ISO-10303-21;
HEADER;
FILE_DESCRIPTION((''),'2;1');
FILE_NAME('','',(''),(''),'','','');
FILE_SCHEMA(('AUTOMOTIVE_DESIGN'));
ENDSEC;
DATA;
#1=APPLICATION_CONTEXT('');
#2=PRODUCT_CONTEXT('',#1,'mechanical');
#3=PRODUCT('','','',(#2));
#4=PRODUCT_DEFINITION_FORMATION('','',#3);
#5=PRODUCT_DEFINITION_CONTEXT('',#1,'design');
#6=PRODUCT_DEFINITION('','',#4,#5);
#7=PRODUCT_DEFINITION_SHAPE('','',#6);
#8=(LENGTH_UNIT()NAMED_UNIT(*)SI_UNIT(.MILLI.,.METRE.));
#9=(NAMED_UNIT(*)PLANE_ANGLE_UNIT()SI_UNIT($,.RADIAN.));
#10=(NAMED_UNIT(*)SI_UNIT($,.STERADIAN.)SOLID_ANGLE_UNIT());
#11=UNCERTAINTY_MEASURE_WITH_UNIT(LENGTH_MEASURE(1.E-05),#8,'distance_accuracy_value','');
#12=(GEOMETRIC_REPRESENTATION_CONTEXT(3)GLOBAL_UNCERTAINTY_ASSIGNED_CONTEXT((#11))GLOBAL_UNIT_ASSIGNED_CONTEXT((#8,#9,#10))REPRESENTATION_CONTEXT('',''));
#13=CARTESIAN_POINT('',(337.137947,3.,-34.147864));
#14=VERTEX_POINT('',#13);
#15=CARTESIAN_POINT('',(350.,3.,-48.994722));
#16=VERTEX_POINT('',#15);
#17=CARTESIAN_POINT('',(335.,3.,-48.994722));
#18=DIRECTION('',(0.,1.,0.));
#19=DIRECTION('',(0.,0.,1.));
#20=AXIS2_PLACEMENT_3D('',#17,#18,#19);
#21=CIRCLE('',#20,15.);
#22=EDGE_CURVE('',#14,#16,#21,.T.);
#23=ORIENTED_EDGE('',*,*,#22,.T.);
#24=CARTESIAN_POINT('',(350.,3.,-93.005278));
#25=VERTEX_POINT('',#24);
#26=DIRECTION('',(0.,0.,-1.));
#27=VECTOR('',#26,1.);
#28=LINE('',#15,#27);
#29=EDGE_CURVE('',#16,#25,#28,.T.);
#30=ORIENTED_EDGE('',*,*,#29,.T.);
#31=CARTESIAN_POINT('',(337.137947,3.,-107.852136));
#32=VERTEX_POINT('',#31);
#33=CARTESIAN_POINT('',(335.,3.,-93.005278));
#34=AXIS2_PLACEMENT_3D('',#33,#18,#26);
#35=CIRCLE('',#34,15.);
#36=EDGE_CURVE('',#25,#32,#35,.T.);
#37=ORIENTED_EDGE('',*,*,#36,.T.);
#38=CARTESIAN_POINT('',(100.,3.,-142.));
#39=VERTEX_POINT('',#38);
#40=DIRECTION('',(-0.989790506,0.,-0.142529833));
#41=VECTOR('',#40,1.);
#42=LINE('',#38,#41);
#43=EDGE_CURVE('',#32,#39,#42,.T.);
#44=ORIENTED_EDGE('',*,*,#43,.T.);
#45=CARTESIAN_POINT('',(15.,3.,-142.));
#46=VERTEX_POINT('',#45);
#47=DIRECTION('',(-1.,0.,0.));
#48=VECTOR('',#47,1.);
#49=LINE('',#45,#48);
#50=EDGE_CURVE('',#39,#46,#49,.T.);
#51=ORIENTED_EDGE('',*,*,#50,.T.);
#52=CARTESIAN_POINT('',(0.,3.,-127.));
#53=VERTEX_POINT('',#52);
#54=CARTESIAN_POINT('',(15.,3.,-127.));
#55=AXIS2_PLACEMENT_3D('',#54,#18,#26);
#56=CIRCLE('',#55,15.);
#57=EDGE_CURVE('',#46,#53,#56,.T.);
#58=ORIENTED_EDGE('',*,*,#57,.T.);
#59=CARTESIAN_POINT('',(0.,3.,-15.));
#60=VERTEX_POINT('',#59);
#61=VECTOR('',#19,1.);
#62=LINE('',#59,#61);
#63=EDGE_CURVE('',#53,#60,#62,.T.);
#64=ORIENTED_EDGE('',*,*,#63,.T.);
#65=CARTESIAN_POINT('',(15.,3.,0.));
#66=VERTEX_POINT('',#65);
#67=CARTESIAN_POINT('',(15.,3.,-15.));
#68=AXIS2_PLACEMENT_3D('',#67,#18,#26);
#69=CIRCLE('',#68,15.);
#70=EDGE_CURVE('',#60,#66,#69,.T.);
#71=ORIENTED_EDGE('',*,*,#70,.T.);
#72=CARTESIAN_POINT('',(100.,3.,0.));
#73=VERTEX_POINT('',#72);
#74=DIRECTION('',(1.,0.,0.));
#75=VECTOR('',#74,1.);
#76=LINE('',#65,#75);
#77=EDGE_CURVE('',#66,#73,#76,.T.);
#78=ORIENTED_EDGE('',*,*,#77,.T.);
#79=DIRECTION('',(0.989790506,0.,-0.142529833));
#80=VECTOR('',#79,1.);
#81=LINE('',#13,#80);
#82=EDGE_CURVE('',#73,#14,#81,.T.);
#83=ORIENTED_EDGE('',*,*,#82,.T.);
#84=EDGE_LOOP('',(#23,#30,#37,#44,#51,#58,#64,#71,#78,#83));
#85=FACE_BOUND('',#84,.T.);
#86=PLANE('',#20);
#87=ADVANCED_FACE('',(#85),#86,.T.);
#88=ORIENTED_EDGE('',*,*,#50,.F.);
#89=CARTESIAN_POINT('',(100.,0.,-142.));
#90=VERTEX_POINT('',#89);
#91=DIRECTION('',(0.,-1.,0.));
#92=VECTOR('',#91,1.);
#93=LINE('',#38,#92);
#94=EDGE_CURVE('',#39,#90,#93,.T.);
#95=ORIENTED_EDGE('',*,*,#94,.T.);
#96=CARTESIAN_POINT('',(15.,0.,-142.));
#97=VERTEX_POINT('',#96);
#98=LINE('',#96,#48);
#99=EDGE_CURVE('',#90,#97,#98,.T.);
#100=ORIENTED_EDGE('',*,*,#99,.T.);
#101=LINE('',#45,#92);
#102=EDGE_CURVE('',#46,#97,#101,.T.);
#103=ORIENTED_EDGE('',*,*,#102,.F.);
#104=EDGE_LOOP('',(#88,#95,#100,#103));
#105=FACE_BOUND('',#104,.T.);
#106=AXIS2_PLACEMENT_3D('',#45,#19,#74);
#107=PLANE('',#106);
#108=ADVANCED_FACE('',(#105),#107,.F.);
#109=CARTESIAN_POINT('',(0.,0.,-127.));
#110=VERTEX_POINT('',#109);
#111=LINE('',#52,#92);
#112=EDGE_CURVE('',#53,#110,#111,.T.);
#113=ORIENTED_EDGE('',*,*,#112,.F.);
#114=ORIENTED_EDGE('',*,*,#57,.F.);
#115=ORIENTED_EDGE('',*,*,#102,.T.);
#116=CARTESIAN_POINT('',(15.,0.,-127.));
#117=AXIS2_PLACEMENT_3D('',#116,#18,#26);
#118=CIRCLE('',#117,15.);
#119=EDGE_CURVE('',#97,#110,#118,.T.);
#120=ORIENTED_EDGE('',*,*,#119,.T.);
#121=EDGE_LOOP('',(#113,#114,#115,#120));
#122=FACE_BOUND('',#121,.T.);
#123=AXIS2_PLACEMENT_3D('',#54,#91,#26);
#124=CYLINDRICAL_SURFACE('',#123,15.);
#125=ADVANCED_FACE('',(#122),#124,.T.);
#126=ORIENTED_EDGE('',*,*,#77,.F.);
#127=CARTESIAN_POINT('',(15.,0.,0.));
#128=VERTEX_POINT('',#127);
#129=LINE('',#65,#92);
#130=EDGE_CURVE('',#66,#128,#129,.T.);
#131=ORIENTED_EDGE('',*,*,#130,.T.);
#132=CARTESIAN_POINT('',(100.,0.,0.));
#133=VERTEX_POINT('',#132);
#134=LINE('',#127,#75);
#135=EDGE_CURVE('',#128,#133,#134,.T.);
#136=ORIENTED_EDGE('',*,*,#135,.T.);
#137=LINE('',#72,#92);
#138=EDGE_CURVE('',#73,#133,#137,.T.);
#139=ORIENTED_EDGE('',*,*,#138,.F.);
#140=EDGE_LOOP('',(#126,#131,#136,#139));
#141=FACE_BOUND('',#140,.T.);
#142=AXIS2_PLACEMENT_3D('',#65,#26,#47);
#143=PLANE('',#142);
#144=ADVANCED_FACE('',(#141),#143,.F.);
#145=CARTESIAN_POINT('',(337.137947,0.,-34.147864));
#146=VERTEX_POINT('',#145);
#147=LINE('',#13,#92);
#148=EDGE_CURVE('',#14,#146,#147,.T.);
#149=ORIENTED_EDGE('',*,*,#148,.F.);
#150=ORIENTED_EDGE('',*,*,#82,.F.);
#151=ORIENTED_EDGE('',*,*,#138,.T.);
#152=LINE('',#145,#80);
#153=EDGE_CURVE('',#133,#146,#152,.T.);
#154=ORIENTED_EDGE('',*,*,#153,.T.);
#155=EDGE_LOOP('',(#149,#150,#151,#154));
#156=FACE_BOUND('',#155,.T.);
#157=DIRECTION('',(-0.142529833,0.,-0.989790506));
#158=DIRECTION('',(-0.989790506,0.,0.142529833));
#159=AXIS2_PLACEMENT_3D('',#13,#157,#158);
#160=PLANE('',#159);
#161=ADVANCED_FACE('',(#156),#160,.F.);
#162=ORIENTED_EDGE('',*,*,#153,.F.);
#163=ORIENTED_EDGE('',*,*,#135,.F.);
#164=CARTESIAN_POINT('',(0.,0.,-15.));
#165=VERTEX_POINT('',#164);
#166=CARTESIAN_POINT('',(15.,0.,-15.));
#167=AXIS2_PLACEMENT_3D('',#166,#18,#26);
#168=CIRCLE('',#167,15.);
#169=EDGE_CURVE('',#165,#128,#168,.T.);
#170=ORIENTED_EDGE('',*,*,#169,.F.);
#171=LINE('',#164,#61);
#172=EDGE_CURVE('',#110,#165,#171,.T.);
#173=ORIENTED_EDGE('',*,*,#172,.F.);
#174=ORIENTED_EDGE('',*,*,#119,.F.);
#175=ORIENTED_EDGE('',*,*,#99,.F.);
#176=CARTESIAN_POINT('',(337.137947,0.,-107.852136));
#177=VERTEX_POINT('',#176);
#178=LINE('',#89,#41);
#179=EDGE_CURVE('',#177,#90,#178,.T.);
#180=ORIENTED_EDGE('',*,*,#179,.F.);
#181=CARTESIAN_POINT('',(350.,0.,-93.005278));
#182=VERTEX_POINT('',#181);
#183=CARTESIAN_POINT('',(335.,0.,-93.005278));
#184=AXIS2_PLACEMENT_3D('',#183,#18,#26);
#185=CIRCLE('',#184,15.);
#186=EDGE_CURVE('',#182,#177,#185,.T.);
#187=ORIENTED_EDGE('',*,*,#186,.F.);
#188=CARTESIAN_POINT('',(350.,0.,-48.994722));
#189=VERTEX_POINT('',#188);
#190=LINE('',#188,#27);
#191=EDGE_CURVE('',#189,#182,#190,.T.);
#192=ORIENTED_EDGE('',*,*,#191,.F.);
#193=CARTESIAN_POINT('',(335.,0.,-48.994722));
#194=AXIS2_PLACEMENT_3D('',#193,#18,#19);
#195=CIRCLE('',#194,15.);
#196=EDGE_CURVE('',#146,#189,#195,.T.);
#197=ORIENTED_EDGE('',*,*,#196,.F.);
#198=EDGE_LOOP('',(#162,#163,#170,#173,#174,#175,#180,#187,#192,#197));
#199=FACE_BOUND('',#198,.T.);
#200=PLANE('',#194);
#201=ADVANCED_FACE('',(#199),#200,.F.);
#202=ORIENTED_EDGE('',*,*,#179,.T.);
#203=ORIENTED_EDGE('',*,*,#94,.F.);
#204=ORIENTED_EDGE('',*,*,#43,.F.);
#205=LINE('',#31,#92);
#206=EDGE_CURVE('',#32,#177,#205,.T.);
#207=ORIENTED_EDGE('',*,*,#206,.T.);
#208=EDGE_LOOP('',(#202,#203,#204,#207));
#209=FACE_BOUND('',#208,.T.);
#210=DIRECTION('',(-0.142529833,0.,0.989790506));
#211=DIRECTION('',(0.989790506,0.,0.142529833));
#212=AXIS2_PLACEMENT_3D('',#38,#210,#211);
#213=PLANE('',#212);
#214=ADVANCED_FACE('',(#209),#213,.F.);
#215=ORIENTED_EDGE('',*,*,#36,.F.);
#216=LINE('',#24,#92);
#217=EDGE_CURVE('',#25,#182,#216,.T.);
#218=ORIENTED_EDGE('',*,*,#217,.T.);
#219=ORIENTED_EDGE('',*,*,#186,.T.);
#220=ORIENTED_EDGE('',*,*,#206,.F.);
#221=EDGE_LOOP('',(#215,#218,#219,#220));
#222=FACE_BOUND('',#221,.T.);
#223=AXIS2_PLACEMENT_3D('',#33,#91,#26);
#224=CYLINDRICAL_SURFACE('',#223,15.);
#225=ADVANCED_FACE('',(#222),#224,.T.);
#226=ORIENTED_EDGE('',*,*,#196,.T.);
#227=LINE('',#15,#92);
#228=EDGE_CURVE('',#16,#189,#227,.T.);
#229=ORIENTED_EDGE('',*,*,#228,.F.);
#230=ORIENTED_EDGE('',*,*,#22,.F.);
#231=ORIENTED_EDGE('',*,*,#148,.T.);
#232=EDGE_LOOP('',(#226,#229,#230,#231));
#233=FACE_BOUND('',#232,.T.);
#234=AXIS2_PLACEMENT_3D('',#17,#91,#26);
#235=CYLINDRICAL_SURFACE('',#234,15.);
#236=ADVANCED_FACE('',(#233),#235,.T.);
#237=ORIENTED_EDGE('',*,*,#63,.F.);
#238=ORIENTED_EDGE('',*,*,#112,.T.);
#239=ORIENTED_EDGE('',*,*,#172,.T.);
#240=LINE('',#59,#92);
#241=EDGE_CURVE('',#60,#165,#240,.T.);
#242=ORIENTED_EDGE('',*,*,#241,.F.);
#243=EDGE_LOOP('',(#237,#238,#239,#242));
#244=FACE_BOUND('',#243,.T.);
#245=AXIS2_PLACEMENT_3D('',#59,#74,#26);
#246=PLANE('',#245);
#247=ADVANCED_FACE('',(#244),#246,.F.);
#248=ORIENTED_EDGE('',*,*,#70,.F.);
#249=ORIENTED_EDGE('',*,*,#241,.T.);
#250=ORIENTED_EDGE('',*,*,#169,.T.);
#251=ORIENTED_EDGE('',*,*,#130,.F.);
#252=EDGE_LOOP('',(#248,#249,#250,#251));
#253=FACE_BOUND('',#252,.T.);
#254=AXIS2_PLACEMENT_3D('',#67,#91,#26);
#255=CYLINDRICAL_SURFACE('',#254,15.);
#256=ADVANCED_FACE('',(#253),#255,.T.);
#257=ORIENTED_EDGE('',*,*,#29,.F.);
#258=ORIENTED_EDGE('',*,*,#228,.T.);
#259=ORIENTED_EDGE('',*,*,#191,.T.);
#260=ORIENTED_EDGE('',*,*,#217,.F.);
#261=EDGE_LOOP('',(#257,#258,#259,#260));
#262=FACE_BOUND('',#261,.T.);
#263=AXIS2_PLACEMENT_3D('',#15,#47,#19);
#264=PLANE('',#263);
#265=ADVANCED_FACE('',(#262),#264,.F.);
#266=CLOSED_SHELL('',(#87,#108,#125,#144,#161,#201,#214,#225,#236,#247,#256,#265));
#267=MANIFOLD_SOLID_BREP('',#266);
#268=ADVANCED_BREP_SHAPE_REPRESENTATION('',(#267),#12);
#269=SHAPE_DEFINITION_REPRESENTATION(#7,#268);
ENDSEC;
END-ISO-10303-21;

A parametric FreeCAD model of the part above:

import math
import FreeCAD as App
import Part
import Sketcher

doc = App.newDocument("Part")
body = doc.addObject("PartDesign::Body", "Body")

sketch1 = doc.addObject("Sketcher::SketchObject", "Sketch")
body.addObject(sketch1)
sketch1.AttachmentSupport = (doc.XZ_Plane, [""])
sketch1.MapMode = "FlatFace"
sketch1.addGeometry(Part.LineSegment(App.Vector(15, 0, 0), App.Vector(100, 0, 0)), False)
sketch1.addGeometry(Part.LineSegment(App.Vector(100, 0, 0), App.Vector(337, -34, 0)), False)
sketch1.addGeometry(Part.ArcOfCircle(Part.Circle(App.Vector(335, -49, 0), App.Vector(0, 0, 1), 15), math.radians(0), math.radians(82)), False)
sketch1.addGeometry(Part.LineSegment(App.Vector(350, -49, 0), App.Vector(350, -93, 0)), False)
sketch1.addGeometry(Part.ArcOfCircle(Part.Circle(App.Vector(335, -93, 0), App.Vector(0, 0, 1), 15), math.radians(-82), math.radians(0)), False)
sketch1.addGeometry(Part.LineSegment(App.Vector(337, -108, 0), App.Vector(100, -142, 0)), False)
sketch1.addGeometry(Part.LineSegment(App.Vector(100, -142, 0), App.Vector(15, -142, 0)), False)
sketch1.addGeometry(Part.ArcOfCircle(Part.Circle(App.Vector(15, -127, 0), App.Vector(0, 0, 1), 15), math.radians(180), math.radians(270)), False)
sketch1.addGeometry(Part.LineSegment(App.Vector(0, -127, 0), App.Vector(0, -15, 0)), False)
sketch1.addGeometry(Part.ArcOfCircle(Part.Circle(App.Vector(15, -15, 0), App.Vector(0, 0, 1), 15), math.radians(90), math.radians(180)), False)
sketch1.addConstraint(Sketcher.Constraint("Coincident", 0, 2, 1, 1))
sketch1.addConstraint(Sketcher.Constraint("Tangent", 1, 2, 2, 2))
sketch1.addConstraint(Sketcher.Constraint("Tangent", 2, 1, 3, 1))
sketch1.addConstraint(Sketcher.Constraint("Tangent", 3, 2, 4, 2))
sketch1.addConstraint(Sketcher.Constraint("Tangent", 4, 1, 5, 1))
sketch1.addConstraint(Sketcher.Constraint("Coincident", 5, 2, 6, 1))
sketch1.addConstraint(Sketcher.Constraint("Tangent", 6, 2, 7, 2))
sketch1.addConstraint(Sketcher.Constraint("Tangent", 7, 1, 8, 1))
sketch1.addConstraint(Sketcher.Constraint("Tangent", 8, 2, 9, 2))
sketch1.addConstraint(Sketcher.Constraint("Tangent", 9, 1, 0, 1))
sketch1.addConstraint(Sketcher.Constraint("Horizontal", 0))
sketch1.addConstraint(Sketcher.Constraint("Vertical", 3))
sketch1.addConstraint(Sketcher.Constraint("Horizontal", 6))
sketch1.addConstraint(Sketcher.Constraint("Vertical", 8))
sketch1.addConstraint(Sketcher.Constraint("Equal", 2, 4))
sketch1.addConstraint(Sketcher.Constraint("Equal", 4, 7))
sketch1.addConstraint(Sketcher.Constraint("Equal", 7, 9))
sketch1.addConstraint(Sketcher.Constraint("PointOnObject", 0, 2, -1))
sketch1.addConstraint(Sketcher.Constraint("PointOnObject", 7, 1, -2))
sketch1.addConstraint(Sketcher.Constraint("Vertical", 1, 2, 4, 1))
sketch1.addConstraint(Sketcher.Constraint("Vertical", 0, 2, 5, 2))
sketch1.addConstraint(Sketcher.Constraint("Radius", 2, 15.0))
sketch1.addConstraint(Sketcher.Constraint("DistanceX", 0, 1, 0, 2, 85.0))
sketch1.addConstraint(Sketcher.Constraint("DistanceY", 8, 1, 8, 2, 112.0))
sketch1.addConstraint(Sketcher.Constraint("DistanceX", -1, 1, 2, 3, 335.0))
sketch1.addConstraint(Sketcher.Constraint("Distance", 1, 239.583979))
pad1 = doc.addObject("PartDesign::Pad", "Pad")
body.addObject(pad1)
pad1.Profile = sketch1
pad1.Length = 3
pad1.Reversed = True

doc.recompute()
